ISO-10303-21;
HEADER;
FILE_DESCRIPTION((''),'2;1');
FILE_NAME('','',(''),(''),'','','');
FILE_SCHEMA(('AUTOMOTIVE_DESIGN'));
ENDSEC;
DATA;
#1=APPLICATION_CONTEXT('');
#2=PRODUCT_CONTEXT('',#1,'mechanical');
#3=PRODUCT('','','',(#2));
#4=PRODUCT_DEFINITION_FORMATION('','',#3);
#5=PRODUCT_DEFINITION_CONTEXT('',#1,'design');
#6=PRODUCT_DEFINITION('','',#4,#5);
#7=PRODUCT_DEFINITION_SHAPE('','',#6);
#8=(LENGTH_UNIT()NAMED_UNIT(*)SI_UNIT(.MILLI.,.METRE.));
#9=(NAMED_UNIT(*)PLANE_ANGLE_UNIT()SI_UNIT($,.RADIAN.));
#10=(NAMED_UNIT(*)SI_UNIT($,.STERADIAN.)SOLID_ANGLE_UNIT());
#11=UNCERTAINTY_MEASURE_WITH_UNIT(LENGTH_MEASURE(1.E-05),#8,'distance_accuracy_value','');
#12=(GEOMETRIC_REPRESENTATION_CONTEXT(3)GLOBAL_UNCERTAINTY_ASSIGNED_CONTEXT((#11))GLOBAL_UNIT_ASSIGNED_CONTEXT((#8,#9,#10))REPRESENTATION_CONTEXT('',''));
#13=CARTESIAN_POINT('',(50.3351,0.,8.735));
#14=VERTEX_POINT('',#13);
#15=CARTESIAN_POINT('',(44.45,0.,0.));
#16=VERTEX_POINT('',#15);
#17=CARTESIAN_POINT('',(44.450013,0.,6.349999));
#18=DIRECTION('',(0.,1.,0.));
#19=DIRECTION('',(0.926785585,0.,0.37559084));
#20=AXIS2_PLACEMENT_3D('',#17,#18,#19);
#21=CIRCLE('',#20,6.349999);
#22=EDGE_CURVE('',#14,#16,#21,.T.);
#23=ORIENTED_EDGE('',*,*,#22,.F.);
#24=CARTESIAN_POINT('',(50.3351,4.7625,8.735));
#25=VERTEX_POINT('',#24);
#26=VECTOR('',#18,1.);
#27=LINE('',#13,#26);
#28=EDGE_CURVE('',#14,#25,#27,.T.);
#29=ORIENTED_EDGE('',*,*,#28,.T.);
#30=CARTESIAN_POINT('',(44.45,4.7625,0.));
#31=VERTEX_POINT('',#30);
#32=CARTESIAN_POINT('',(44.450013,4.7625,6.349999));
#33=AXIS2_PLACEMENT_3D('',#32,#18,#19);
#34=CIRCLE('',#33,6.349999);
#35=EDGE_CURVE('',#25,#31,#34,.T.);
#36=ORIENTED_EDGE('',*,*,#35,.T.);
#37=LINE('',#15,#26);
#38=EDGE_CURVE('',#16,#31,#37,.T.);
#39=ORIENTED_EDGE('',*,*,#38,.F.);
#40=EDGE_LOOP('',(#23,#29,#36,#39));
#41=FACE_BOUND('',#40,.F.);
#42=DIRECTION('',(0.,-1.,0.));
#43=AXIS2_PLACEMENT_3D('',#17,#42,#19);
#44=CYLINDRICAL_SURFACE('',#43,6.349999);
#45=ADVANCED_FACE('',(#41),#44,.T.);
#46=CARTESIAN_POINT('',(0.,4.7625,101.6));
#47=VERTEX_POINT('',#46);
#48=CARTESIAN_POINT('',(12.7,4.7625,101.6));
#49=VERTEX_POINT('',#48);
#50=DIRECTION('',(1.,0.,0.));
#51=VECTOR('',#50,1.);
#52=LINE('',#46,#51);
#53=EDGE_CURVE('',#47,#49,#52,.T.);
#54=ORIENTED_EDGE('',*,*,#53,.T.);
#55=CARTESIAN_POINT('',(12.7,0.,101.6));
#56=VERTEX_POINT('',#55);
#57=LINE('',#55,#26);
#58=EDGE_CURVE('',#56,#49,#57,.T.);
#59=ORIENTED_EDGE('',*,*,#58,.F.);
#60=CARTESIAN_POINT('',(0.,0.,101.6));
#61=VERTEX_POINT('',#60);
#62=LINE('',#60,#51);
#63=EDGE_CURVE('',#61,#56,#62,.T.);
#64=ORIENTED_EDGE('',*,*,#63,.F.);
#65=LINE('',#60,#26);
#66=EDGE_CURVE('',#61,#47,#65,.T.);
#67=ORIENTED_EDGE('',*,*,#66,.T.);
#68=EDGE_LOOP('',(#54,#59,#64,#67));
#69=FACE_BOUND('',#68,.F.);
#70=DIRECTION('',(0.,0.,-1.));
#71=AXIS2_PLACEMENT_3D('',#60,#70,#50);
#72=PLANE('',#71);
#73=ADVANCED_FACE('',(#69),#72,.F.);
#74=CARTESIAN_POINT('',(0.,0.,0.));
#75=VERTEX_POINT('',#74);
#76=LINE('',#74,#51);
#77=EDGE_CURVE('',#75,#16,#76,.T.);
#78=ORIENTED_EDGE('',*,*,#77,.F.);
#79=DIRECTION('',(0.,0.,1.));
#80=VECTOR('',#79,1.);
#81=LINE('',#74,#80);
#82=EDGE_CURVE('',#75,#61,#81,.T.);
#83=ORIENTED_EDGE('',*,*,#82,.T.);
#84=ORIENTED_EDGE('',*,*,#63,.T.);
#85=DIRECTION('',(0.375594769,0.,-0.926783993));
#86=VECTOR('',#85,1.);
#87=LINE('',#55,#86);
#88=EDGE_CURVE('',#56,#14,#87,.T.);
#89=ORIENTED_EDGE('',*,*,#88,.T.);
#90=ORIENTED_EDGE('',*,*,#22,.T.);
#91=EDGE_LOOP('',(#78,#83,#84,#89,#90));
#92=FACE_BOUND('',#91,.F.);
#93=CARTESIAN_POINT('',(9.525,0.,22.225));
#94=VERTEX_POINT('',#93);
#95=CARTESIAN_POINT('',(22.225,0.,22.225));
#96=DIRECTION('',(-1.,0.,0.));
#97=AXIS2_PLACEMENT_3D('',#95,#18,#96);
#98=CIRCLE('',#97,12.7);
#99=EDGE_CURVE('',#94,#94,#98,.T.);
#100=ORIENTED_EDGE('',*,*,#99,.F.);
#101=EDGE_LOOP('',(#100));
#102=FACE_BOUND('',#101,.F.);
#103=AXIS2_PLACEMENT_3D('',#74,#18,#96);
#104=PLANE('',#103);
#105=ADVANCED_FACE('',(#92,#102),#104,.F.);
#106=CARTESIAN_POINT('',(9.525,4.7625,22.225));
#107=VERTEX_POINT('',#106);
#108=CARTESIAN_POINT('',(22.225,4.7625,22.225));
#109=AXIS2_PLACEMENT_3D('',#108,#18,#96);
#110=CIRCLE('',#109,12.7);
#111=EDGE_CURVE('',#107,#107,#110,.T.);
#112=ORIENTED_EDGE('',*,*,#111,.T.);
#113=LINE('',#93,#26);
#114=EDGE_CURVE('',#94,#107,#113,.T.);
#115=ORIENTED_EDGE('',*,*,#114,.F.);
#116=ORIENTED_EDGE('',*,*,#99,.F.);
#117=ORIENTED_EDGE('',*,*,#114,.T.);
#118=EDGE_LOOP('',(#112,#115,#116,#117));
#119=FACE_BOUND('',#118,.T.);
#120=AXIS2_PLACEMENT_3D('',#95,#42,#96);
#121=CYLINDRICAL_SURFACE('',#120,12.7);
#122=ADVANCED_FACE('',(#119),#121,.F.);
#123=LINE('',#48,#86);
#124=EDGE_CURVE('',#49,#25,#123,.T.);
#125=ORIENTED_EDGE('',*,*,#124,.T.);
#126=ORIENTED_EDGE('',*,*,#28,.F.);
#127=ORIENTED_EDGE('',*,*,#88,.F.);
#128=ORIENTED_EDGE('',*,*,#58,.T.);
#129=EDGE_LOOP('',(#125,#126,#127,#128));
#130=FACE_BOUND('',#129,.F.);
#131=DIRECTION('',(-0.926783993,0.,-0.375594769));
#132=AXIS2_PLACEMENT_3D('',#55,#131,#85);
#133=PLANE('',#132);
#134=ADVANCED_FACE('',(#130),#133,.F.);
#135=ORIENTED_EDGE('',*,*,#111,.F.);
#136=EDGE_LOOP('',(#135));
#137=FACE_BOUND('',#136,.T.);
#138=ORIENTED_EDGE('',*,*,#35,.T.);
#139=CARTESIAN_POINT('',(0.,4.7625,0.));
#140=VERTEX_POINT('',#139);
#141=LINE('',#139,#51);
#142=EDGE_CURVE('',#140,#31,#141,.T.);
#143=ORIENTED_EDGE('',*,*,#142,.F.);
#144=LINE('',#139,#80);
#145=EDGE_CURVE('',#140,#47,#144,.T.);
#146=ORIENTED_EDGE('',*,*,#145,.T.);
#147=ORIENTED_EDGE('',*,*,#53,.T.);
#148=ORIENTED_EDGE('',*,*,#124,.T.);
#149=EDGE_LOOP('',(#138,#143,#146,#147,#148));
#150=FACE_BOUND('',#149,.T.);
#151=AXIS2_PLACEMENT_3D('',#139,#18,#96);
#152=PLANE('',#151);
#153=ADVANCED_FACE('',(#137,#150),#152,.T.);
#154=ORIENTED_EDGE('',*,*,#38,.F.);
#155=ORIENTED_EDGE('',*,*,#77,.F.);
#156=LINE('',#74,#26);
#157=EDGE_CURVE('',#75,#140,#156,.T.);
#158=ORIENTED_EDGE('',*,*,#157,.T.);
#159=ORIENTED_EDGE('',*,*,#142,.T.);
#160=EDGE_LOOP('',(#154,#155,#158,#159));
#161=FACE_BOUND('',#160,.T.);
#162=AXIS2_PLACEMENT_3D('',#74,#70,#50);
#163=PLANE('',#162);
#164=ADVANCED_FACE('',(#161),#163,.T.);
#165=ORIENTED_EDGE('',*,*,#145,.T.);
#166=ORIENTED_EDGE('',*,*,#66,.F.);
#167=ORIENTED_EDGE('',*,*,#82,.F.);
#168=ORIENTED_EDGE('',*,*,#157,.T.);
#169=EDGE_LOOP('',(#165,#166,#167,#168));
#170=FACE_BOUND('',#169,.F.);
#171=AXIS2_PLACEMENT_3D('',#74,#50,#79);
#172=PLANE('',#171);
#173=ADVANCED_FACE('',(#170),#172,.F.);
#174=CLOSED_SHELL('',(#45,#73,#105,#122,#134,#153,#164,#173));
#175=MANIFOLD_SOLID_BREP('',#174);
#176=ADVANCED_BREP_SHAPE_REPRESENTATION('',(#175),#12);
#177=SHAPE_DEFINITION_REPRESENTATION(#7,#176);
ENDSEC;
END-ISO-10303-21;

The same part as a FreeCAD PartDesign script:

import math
import FreeCAD as App
import Part
import Sketcher
Q = App.Units.Quantity

doc = App.newDocument("Part")
params = doc.addObject("Spreadsheet::Sheet", "Params")
for row, (alias, value) in enumerate([
    ("sketch1_diameter", "1 in"),
    ("sketch1_height", "4 in"),
    ("sketch1_radius", "0.25 in"),
    ("sketch1_width", "0.5 in"),
    ("pad1_length", "0.1875 in"),
], start=1):
    params.set(f"A{row}", alias)
    params.set(f"B{row}", "=" + value)
    params.setAlias(f"B{row}", alias)

body = doc.addObject("PartDesign::Body", "Body")

# Sketch on XZ plane
sketch1 = body.newObject("Sketcher::SketchObject", "Sketch")
sketch1.AttachmentSupport = (doc.getObject("XZ_Plane"), [""])
sketch1.MapMode = "FlatFace"
sketch1.addGeometry([
    Part.LineSegment(App.Vector(44, 0, 0), App.Vector(0, 0, 0)),  # 0
    Part.LineSegment(App.Vector(0, 0, 0), App.Vector(0, 102, 0)),  # 1
    Part.LineSegment(App.Vector(0, 102, 0), App.Vector(13, 102, 0)),  # 2
    Part.LineSegment(App.Vector(13, 102, 0), App.Vector(50, 9, 0)),  # 3
    Part.ArcOfCircle(Part.Circle(App.Vector(44, 6, 0), App.Vector(0, 0, 1), 6), math.radians(-90), math.radians(22)),  # 4
    Part.Circle(App.Vector(22, 22, 0), App.Vector(0, 0, 1), 13),  # 5
], False)
sketch1.addConstraint([
    Sketcher.Constraint("Coincident", 0, 2, 1, 1),
    Sketcher.Constraint("Coincident", 1, 2, 2, 1),
    Sketcher.Constraint("Coincident", 2, 2, 3, 1),
    Sketcher.Constraint("Tangent", 3, 2, 4, 2),
    Sketcher.Constraint("Tangent", 4, 1, 0, 1),
    Sketcher.Constraint("Horizontal", 0),
    Sketcher.Constraint("Vertical", 1),
    Sketcher.Constraint("Horizontal", 2),
    Sketcher.Constraint("Coincident", 0, 2, -1, 1),
    Sketcher.Constraint("Diameter", 5, Q("1 in")),
    Sketcher.Constraint("DistanceY", 1, 1, 1, 2, Q("4 in")),
    Sketcher.Constraint("Radius", 4, Q("0.25 in")),
    Sketcher.Constraint("DistanceX", 2, 1, 2, 2, Q("0.5 in")),
    Sketcher.Constraint("DistanceX", -1, 1, 5, 3, Q("0.875 in")),
    Sketcher.Constraint("DistanceY", -1, 1, 5, 3, Q("0.875 in")),
    Sketcher.Constraint("DistanceX", 5, 3, 4, 3, Q("0.875 in")),
])
sketch1.setExpression("Constraints[9]", "Params.sketch1_diameter")
sketch1.setExpression("Constraints[10]", "Params.sketch1_height")
sketch1.setExpression("Constraints[11]", "Params.sketch1_radius")
sketch1.setExpression("Constraints[12]", "Params.sketch1_width")
pad1 = body.newObject("PartDesign::Pad", "Pad")
pad1.Profile = sketch1
pad1.setExpression("Length", "Params.pad1_length")
pad1.Reversed = True

doc.recompute()
